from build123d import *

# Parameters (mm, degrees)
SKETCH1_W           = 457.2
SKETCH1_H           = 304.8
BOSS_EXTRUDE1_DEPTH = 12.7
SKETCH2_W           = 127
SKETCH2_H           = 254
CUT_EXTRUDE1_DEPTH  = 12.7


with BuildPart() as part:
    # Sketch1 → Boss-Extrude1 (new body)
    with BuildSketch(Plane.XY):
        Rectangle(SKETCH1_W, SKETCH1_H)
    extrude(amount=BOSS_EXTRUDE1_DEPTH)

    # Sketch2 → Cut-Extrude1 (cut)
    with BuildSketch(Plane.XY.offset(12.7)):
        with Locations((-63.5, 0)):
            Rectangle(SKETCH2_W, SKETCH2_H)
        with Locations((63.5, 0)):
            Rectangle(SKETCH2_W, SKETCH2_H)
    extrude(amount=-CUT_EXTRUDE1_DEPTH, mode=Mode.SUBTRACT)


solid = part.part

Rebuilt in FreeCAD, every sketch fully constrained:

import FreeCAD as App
import Part
import Sketcher
from FreeCAD import Vector
Q = App.Units.Quantity


def add_polygon(sketch, points):
    """Adds a closed chain of lines whose ends are joined by coincident constraints."""
    first, n = sketch.GeometryCount, len(points)
    for a, b in zip(points, points[1:] + points[:1]):
        sketch.addGeometry(Part.LineSegment(App.Vector(*a, 0), App.Vector(*b, 0)), False)
    for i in range(n):
        sketch.addConstraint(Sketcher.Constraint("Coincident", first + i, 2, first + (i + 1) % n, 1))

doc = App.newDocument("Part")
body = doc.addObject("PartDesign::Body", "Body")

# Sketch on XY plane
sketch1 = doc.addObject("Sketcher::SketchObject", "Sketch")
body.addObject(sketch1)
sketch1.AttachmentSupport = (doc.XY_Plane, [""])
sketch1.MapMode = "FlatFace"
add_polygon(sketch1, [(-229, 152), (-229, -152), (229, -152), (229, 152)])  # lines 0-3
sketch1.addConstraint([
    Sketcher.Constraint("Vertical", 0),
    Sketcher.Constraint("Horizontal", 1),
    Sketcher.Constraint("Vertical", 2),
    Sketcher.Constraint("Horizontal", 3),
    Sketcher.Constraint("Symmetric", 0, 2, 2, 2, -1, 1),
    Sketcher.Constraint("DistanceX", 1, 1, 1, 2, Q("18 in")),
    Sketcher.Constraint("DistanceY", 0, 2, 0, 1, Q("12 in")),
])
pad1 = doc.addObject("PartDesign::Pad", "Pad")
body.addObject(pad1)
pad1.Profile = sketch1
pad1.Length = Q("0.5 in")

# Sketch on XY plane
sketch2 = doc.addObject("Sketcher::SketchObject", "Sketch001")
body.addObject(sketch2)
sketch2.AttachmentSupport = (doc.XY_Plane, [""])
sketch2.MapMode = "FlatFace"
sketch2.AttachmentOffset = App.Placement(Vector(0, 0, 0.5 * 25.4), App.Rotation())
add_polygon(sketch2, [(-127, 127), (-127, -127), (127, -127), (127, 127)])  # lines 0-3
sketch2.addConstraint([
    Sketcher.Constraint("Vertical", 0),
    Sketcher.Constraint("Horizontal", 1),
    Sketcher.Constraint("Vertical", 2),
    Sketcher.Constraint("Horizontal", 3),
    Sketcher.Constraint("Symmetric", 0, 2, 2, 2, -1, 1),
    Sketcher.Constraint("Equal", 3, 0),
    Sketcher.Constraint("DistanceX", 1, 1, 1, 2, Q("10 in")),
])
pocket1 = doc.addObject("PartDesign::Pocket", "Pocket")
body.addObject(pocket1)
pocket1.Profile = sketch2
pocket1.Length = Q("0.5 in")

doc.recompute()
